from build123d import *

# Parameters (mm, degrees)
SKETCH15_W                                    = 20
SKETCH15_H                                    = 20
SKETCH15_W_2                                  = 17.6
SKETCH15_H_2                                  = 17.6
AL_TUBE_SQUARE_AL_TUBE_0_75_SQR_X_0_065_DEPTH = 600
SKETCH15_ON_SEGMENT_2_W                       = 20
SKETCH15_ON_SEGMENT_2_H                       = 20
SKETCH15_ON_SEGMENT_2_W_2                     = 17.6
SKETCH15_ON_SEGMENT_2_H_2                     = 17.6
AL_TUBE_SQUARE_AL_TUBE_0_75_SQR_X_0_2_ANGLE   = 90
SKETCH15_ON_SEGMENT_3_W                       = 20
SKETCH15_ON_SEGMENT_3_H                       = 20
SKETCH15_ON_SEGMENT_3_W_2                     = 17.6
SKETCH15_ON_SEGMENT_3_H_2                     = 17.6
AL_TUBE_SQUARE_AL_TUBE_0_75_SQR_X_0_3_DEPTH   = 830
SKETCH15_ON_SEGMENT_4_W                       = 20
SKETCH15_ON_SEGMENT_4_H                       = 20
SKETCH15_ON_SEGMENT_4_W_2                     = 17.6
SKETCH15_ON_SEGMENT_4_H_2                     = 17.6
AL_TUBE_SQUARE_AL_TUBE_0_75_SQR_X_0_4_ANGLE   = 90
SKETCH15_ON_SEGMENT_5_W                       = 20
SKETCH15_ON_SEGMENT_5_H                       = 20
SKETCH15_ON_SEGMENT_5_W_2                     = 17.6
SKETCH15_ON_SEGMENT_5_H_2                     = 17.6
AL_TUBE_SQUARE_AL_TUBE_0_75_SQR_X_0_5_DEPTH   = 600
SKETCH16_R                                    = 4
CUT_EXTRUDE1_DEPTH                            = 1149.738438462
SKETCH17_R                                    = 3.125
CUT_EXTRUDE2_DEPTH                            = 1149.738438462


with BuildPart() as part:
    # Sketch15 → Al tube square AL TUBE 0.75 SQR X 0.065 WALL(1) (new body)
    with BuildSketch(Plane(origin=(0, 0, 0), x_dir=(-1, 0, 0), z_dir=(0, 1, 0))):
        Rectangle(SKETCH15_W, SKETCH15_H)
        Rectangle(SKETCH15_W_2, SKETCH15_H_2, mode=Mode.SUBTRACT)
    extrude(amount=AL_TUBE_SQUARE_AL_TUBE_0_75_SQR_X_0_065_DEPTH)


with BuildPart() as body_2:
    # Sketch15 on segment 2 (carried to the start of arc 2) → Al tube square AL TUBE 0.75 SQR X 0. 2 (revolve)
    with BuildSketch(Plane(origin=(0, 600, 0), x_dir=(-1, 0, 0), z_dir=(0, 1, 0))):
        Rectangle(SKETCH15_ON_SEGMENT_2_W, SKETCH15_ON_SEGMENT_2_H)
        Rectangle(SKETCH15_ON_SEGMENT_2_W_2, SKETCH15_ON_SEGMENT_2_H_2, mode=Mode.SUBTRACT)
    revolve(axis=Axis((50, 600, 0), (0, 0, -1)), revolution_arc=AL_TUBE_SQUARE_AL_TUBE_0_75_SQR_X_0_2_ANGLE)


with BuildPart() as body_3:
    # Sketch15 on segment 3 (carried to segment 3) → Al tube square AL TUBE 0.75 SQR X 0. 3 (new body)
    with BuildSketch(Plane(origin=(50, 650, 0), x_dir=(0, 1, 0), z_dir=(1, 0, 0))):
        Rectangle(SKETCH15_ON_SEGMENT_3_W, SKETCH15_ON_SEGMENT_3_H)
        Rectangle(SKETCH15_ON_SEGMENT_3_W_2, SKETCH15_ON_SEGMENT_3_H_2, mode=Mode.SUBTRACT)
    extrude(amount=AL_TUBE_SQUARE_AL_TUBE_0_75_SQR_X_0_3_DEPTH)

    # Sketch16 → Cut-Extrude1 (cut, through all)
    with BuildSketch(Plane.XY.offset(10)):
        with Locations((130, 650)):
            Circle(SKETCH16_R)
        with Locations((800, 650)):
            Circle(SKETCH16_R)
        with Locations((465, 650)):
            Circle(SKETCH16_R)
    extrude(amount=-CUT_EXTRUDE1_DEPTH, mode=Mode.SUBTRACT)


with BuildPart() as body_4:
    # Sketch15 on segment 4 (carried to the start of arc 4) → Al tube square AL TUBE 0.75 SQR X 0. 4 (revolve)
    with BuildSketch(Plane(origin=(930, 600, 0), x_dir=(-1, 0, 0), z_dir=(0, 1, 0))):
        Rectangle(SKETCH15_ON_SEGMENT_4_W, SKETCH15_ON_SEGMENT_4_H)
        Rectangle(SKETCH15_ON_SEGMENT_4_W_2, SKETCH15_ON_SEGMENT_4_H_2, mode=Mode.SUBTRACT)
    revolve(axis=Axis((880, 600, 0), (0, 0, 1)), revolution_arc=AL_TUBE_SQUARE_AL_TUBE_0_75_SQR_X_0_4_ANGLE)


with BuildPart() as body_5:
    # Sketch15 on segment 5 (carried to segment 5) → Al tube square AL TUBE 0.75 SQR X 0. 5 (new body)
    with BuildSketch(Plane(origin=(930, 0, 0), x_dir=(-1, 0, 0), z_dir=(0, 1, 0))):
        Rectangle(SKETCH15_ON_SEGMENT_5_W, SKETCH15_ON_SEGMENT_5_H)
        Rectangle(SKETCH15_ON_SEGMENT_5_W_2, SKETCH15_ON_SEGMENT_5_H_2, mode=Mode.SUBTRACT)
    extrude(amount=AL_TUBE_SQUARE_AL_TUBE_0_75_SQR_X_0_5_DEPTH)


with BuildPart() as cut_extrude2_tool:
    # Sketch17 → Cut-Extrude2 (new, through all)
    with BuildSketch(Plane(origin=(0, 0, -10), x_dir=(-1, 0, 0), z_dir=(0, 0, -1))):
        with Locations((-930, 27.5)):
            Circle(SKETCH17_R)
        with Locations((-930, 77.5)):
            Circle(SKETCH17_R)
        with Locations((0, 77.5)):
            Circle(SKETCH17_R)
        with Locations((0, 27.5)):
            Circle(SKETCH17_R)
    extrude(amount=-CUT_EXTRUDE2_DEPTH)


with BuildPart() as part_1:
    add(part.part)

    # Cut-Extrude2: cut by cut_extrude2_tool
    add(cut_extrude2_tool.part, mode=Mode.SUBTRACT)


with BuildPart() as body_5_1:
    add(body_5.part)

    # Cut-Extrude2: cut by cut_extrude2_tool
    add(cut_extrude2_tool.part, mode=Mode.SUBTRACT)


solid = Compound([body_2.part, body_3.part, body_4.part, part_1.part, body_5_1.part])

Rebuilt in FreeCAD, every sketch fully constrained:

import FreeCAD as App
import Part
import Sketcher

doc = App.newDocument("Part")
params = doc.addObject("Spreadsheet::Sheet", "Params")
for row, (alias, value) in enumerate([
    ("sketch1_width", "20 mm"),
    ("sketch1_width2", "17.6 mm"),
    ("pad1_length", "600 mm"),
    ("sketch2_width", "20 mm"),
    ("sketch2_width2", "17.6 mm"),
    ("revolution_angle", "90 deg"),
    ("sketch3_width", "20 mm"),
    ("sketch3_width2", "17.6 mm"),
    ("pad2_length", "830 mm"),
    ("sketch4_diameter", "8 mm"),
    ("sketch5_width", "20 mm"),
    ("sketch5_width2", "17.6 mm"),
    ("revolution2_angle", "90 deg"),
    ("sketch6_width", "20 mm"),
    ("sketch6_width2", "17.6 mm"),
    ("pad3_length", "600 mm"),
    ("sketch7_diameter", "6.25 mm"),
    ("pad4_length", "1149.738438 mm"),
], start=1):
    params.set(f"A{row}", alias)
    params.set(f"B{row}", "=" + value)
    params.setAlias(f"B{row}", alias)

body = doc.addObject("PartDesign::Body", "Body")

# Sketch on XZ plane
sketch1 = doc.addObject("Sketcher::SketchObject", "Sketch")
body.addObject(sketch1)
sketch1.AttachmentSupport = (doc.XZ_Plane, [""])
sketch1.MapMode = "FlatFace"
sketch1.addGeometry(Part.LineSegment(App.Vector(10, 10, 0), App.Vector(10, -10, 0)), False)
sketch1.addGeometry(Part.LineSegment(App.Vector(10, -10, 0), App.Vector(-10, -10, 0)), False)
sketch1.addGeometry(Part.LineSegment(App.Vector(-10, -10, 0), App.Vector(-10, 10, 0)), False)
sketch1.addGeometry(Part.LineSegment(App.Vector(-10, 10, 0), App.Vector(10, 10, 0)), False)
sketch1.addGeometry(Part.LineSegment(App.Vector(-9, -9, 0), App.Vector(9, -9, 0)), False)
sketch1.addGeometry(Part.LineSegment(App.Vector(9, -9, 0), App.Vector(9, 9, 0)), False)
sketch1.addGeometry(Part.LineSegment(App.Vector(9, 9, 0), App.Vector(-9, 9, 0)), False)
sketch1.addGeometry(Part.LineSegment(App.Vector(-9, 9, 0), App.Vector(-9, -9, 0)), False)
sketch1.addConstraint(Sketcher.Constraint("Coincident", 0, 2, 1, 1))
sketch1.addConstraint(Sketcher.Constraint("Coincident", 1, 2, 2, 1))
sketch1.addConstraint(Sketcher.Constraint("Coincident", 2, 2, 3, 1))
sketch1.addConstraint(Sketcher.Constraint("Coincident", 3, 2, 0, 1))
sketch1.addConstraint(Sketcher.Constraint("Coincident", 4, 2, 5, 1))
sketch1.addConstraint(Sketcher.Constraint("Coincident", 5, 2, 6, 1))
sketch1.addConstraint(Sketcher.Constraint("Coincident", 6, 2, 7, 1))
sketch1.addConstraint(Sketcher.Constraint("Coincident", 7, 2, 4, 1))
sketch1.addConstraint(Sketcher.Constraint("Vertical", 0))
sketch1.addConstraint(Sketcher.Constraint("Horizontal", 1))
sketch1.addConstraint(Sketcher.Constraint("Vertical", 2))
sketch1.addConstraint(Sketcher.Constraint("Horizontal", 3))
sketch1.addConstraint(Sketcher.Constraint("Horizontal", 4))
sketch1.addConstraint(Sketcher.Constraint("Vertical", 5))
sketch1.addConstraint(Sketcher.Constraint("Horizontal", 6))
sketch1.addConstraint(Sketcher.Constraint("Vertical", 7))
sketch1.addConstraint(Sketcher.Constraint("Symmetric", 0, 2, 2, 2, -1, 1))
sketch1.addConstraint(Sketcher.Constraint("Symmetric", 4, 2, 6, 2, -1, 1))
sketch1.addConstraint(Sketcher.Constraint("Equal", 3, 0))
sketch1.addConstraint(Sketcher.Constraint("Equal", 6, 5))
sketch1.addConstraint(Sketcher.Constraint("DistanceX", 1, 2, 1, 1, 20.0))
sketch1.addConstraint(Sketcher.Constraint("DistanceX", 4, 1, 4, 2, 17.6))
sketch1.setExpression("Constraints[20]", "Params.sketch1_width")
sketch1.setExpression("Constraints[21]", "Params.sketch1_width2")
pad1 = doc.addObject("PartDesign::Pad", "Pad")
body.addObject(pad1)
pad1.Profile = sketch1
pad1.setExpression("Length", "Params.pad1_length")
pad1.Reversed = True
body2 = doc.addObject("PartDesign::Body", "Body001")

# Sketch on XZ plane
sketch2 = doc.addObject("Sketcher::SketchObject", "Sketch001")
body2.addObject(sketch2)
sketch2.AttachmentSupport = (doc.getObject("XZ_Plane001"), [""])
sketch2.MapMode = "FlatFace"
sketch2.AttachmentOffset = App.Placement(App.Vector(0, 0, -600), App.Rotation())
sketch2.addGeometry(Part.LineSegment(App.Vector(10, 10, 0), App.Vector(10, -10, 0)), False)
sketch2.addGeometry(Part.LineSegment(App.Vector(10, -10, 0), App.Vector(-10, -10, 0)), False)
sketch2.addGeometry(Part.LineSegment(App.Vector(-10, -10, 0), App.Vector(-10, 10, 0)), False)
sketch2.addGeometry(Part.LineSegment(App.Vector(-10, 10, 0), App.Vector(10, 10, 0)), False)
sketch2.addGeometry(Part.LineSegment(App.Vector(-9, -9, 0), App.Vector(9, -9, 0)), False)
sketch2.addGeometry(Part.LineSegment(App.Vector(9, -9, 0), App.Vector(9, 9, 0)), False)
sketch2.addGeometry(Part.LineSegment(App.Vector(9, 9, 0), App.Vector(-9, 9, 0)), False)
sketch2.addGeometry(Part.LineSegment(App.Vector(-9, 9, 0), App.Vector(-9, -9, 0)), False)
sketch2.addGeometry(Part.LineSegment(App.Vector(50, 10, 0), App.Vector(50, -10, 0)), True)  # axis
sketch2.addConstraint(Sketcher.Constraint("Coincident", 0, 2, 1, 1))
sketch2.addConstraint(Sketcher.Constraint("Coincident", 1, 2, 2, 1))
sketch2.addConstraint(Sketcher.Constraint("Coincident", 2, 2, 3, 1))
sketch2.addConstraint(Sketcher.Constraint("Coincident", 3, 2, 0, 1))
sketch2.addConstraint(Sketcher.Constraint("Coincident", 4, 2, 5, 1))
sketch2.addConstraint(Sketcher.Constraint("Coincident", 5, 2, 6, 1))
sketch2.addConstraint(Sketcher.Constraint("Coincident", 6, 2, 7, 1))
sketch2.addConstraint(Sketcher.Constraint("Coincident", 7, 2, 4, 1))
sketch2.addConstraint(Sketcher.Constraint("Vertical", 0))
sketch2.addConstraint(Sketcher.Constraint("Horizontal", 1))
sketch2.addConstraint(Sketcher.Constraint("Vertical", 2))
sketch2.addConstraint(Sketcher.Constraint("Horizontal", 3))
sketch2.addConstraint(Sketcher.Constraint("Horizontal", 4))
sketch2.addConstraint(Sketcher.Constraint("Vertical", 5))
sketch2.addConstraint(Sketcher.Constraint("Horizontal", 6))
sketch2.addConstraint(Sketcher.Constraint("Vertical", 7))
sketch2.addConstraint(Sketcher.Constraint("Vertical", 8))
sketch2.addConstraint(Sketcher.Constraint("Symmetric", 0, 2, 2, 2, -1, 1))
sketch2.addConstraint(Sketcher.Constraint("Symmetric", 4, 2, 6, 2, -1, 1))
sketch2.addConstraint(Sketcher.Constraint("Horizontal", 3, 2, 8, 1))
sketch2.addConstraint(Sketcher.Constraint("Horizontal", 1, 2, 8, 2))
sketch2.addConstraint(Sketcher.Constraint("Equal", 3, 0))
sketch2.addConstraint(Sketcher.Constraint("Equal", 6, 5))
sketch2.addConstraint(Sketcher.Constraint("DistanceX", 1, 2, 1, 1, 20.0))
sketch2.addConstraint(Sketcher.Constraint("DistanceX", 4, 1, 4, 2, 17.6))
sketch2.addConstraint(Sketcher.Constraint("DistanceX", -1, 1, 8, 1, 50.0))
sketch2.setExpression("Constraints[23]", "Params.sketch2_width")
sketch2.setExpression("Constraints[24]", "Params.sketch2_width2")
revolution = doc.addObject("PartDesign::Revolution", "Revolution")
body2.addObject(revolution)
revolution.Profile = sketch2
revolution.ReferenceAxis = (sketch2, ["Axis0"])
revolution.setExpression("Angle", "Params.revolution_angle")
body3 = doc.addObject("PartDesign::Body", "Body002")

# Sketch on YZ plane
sketch3 = doc.addObject("Sketcher::SketchObject", "Sketch002")
body3.addObject(sketch3)
sketch3.AttachmentSupport = (doc.getObject("YZ_Plane002"), [""])
sketch3.MapMode = "FlatFace"
sketch3.AttachmentOffset = App.Placement(App.Vector(0, 0, 50), App.Rotation())
sketch3.addGeometry(Part.LineSegment(App.Vector(640, 10, 0), App.Vector(640, -10, 0)), False)
sketch3.addGeometry(Part.LineSegment(App.Vector(640, -10, 0), App.Vector(660, -10, 0)), False)
sketch3.addGeometry(Part.LineSegment(App.Vector(660, -10, 0), App.Vector(660, 10, 0)), False)
sketch3.addGeometry(Part.LineSegment(App.Vector(660, 10, 0), App.Vector(640, 10, 0)), False)
sketch3.addGeometry(Part.LineSegment(App.Vector(659, -9, 0), App.Vector(641, -9, 0)), False)
sketch3.addGeometry(Part.LineSegment(App.Vector(641, -9, 0), App.Vector(641, 9, 0)), False)
sketch3.addGeometry(Part.LineSegment(App.Vector(641, 9, 0), App.Vector(659, 9, 0)), False)
sketch3.addGeometry(Part.LineSegment(App.Vector(659, 9, 0), App.Vector(659, -9, 0)), False)
sketch3.addConstraint(Sketcher.Constraint("Coincident", 0, 2, 1, 1))
sketch3.addConstraint(Sketcher.Constraint("Coincident", 1, 2, 2, 1))
sketch3.addConstraint(Sketcher.Constraint("Coincident", 2, 2, 3, 1))
sketch3.addConstraint(Sketcher.Constraint("Coincident", 3, 2, 0, 1))
sketch3.addConstraint(Sketcher.Constraint("Coincident", 4, 2, 5, 1))
sketch3.addConstraint(Sketcher.Constraint("Coincident", 5, 2, 6, 1))
sketch3.addConstraint(Sketcher.Constraint("Coincident", 6, 2, 7, 1))
sketch3.addConstraint(Sketcher.Constraint("Coincident", 7, 2, 4, 1))
sketch3.addConstraint(Sketcher.Constraint("Vertical", 0))
sketch3.addConstraint(Sketcher.Constraint("Horizontal", 1))
sketch3.addConstraint(Sketcher.Constraint("Vertical", 2))
sketch3.addConstraint(Sketcher.Constraint("Horizontal", 3))
sketch3.addConstraint(Sketcher.Constraint("Horizontal", 4))
sketch3.addConstraint(Sketcher.Constraint("Vertical", 5))
sketch3.addConstraint(Sketcher.Constraint("Horizontal", 6))
sketch3.addConstraint(Sketcher.Constraint("Vertical", 7))
sketch3.addConstraint(Sketcher.Constraint("Equal", 3, 0))
sketch3.addConstraint(Sketcher.Constraint("Equal", 6, 5))
sketch3.addConstraint(Sketcher.Constraint("DistanceX", 1, 1, 1, 2, 20.0))
sketch3.addConstraint(Sketcher.Constraint("DistanceX", 4, 2, 4, 1, 17.6))
sketch3.addConstraint(Sketcher.Constraint("DistanceX", -1, 1, 0, 2, 640.0))
sketch3.addConstraint(Sketcher.Constraint("DistanceY", 0, 2, -1, 1, 10.0))
sketch3.addConstraint(Sketcher.Constraint("DistanceX", -1, 1, 4, 2, 641.2))
sketch3.addConstraint(Sketcher.Constraint("DistanceY", 4, 2, -1, 1, 8.8))
sketch3.setExpression("Constraints[18]", "Params.sketch3_width")
sketch3.setExpression("Constraints[19]", "Params.sketch3_width2")
pad2 = doc.addObject("PartDesign::Pad", "Pad001")
body3.addObject(pad2)
pad2.Profile = sketch3
pad2.setExpression("Length", "Params.pad2_length")

# Sketch on XY plane
sketch4 = doc.addObject("Sketcher::SketchObject", "Sketch003")
body3.addObject(sketch4)
sketch4.AttachmentSupport = (doc.getObject("XY_Plane002"), [""])
sketch4.MapMode = "FlatFace"
sketch4.AttachmentOffset = App.Placement(App.Vector(0, 0, 10), App.Rotation())
sketch4.addGeometry(Part.Circle(App.Vector(130, 650, 0), App.Vector(0, 0, 1), 4), False)
sketch4.addGeometry(Part.Circle(App.Vector(800, 650, 0), App.Vector(0, 0, 1), 4), False)
sketch4.addGeometry(Part.Circle(App.Vector(465, 650, 0), App.Vector(0, 0, 1), 4), False)
sketch4.addConstraint(Sketcher.Constraint("Equal", 0, 1))
sketch4.addConstraint(Sketcher.Constraint("Equal", 1, 2))
sketch4.addConstraint(Sketcher.Constraint("Horizontal", 0, 3, 1, 3))
sketch4.addConstraint(Sketcher.Constraint("Horizontal", 1, 3, 2, 3))
sketch4.addConstraint(Sketcher.Constraint("Diameter", 0, 8.0))
sketch4.addConstraint(Sketcher.Constraint("DistanceX", -1, 1, 0, 3, 130.0))
sketch4.addConstraint(Sketcher.Constraint("DistanceY", -1, 1, 0, 3, 650.0))
sketch4.addConstraint(Sketcher.Constraint("DistanceX", -1, 1, 1, 3, 800.0))
sketch4.addConstraint(Sketcher.Constraint("DistanceX", -1, 1, 2, 3, 465.0))
sketch4.setExpression("Constraints[4]", "Params.sketch4_diameter")
pocket1 = doc.addObject("PartDesign::Pocket", "Pocket")
body3.addObject(pocket1)
pocket1.Profile = sketch4
pocket1.Type = "ThroughAll"
body4 = doc.addObject("PartDesign::Body", "Body003")

# Sketch on XZ plane
sketch5 = doc.addObject("Sketcher::SketchObject", "Sketch004")
body4.addObject(sketch5)
sketch5.AttachmentSupport = (doc.getObject("XZ_Plane003"), [""])
sketch5.MapMode = "FlatFace"
sketch5.AttachmentOffset = App.Placement(App.Vector(0, 0, -600), App.Rotation())
sketch5.addGeometry(Part.LineSegment(App.Vector(940, 10, 0), App.Vector(940, -10, 0)), False)
sketch5.addGeometry(Part.LineSegment(App.Vector(940, -10, 0), App.Vector(920, -10, 0)), False)
sketch5.addGeometry(Part.LineSegment(App.Vector(920, -10, 0), App.Vector(920, 10, 0)), False)
sketch5.addGeometry(Part.LineSegment(App.Vector(920, 10, 0), App.Vector(940, 10, 0)), False)
sketch5.addGeometry(Part.LineSegment(App.Vector(921, -9, 0), App.Vector(939, -9, 0)), False)
sketch5.addGeometry(Part.LineSegment(App.Vector(939, -9, 0), App.Vector(939, 9, 0)), False)
sketch5.addGeometry(Part.LineSegment(App.Vector(939, 9, 0), App.Vector(921, 9, 0)), False)
sketch5.addGeometry(Part.LineSegment(App.Vector(921, 9, 0), App.Vector(921, -9, 0)), False)
sketch5.addGeometry(Part.LineSegment(App.Vector(880, -10, 0), App.Vector(880, 10, 0)), True)  # axis
sketch5.addConstraint(Sketcher.Constraint("Coincident", 0, 2, 1, 1))
sketch5.addConstraint(Sketcher.Constraint("Coincident", 1, 2, 2, 1))
sketch5.addConstraint(Sketcher.Constraint("Coincident", 2, 2, 3, 1))
sketch5.addConstraint(Sketcher.Constraint("Coincident", 3, 2, 0, 1))
sketch5.addConstraint(Sketcher.Constraint("Coincident", 4, 2, 5, 1))
sketch5.addConstraint(Sketcher.Constraint("Coincident", 5, 2, 6, 1))
sketch5.addConstraint(Sketcher.Constraint("Coincident", 6, 2, 7, 1))
sketch5.addConstraint(Sketcher.Constraint("Coincident", 7, 2, 4, 1))
sketch5.addConstraint(Sketcher.Constraint("Vertical", 0))
sketch5.addConstraint(Sketcher.Constraint("Horizontal", 1))
sketch5.addConstraint(Sketcher.Constraint("Vertical", 2))
sketch5.addConstraint(Sketcher.Constraint("Horizontal", 3))
sketch5.addConstraint(Sketcher.Constraint("Horizontal", 4))
sketch5.addConstraint(Sketcher.Constraint("Vertical", 5))
sketch5.addConstraint(Sketcher.Constraint("Horizontal", 6))
sketch5.addConstraint(Sketcher.Constraint("Vertical", 7))
sketch5.addConstraint(Sketcher.Constraint("Vertical", 8))
sketch5.addConstraint(Sketcher.Constraint("Horizontal", 1, 2, 8, 1))
sketch5.addConstraint(Sketcher.Constraint("Horizontal", 3, 2, 8, 2))
sketch5.addConstraint(Sketcher.Constraint("Equal", 3, 0))
sketch5.addConstraint(Sketcher.Constraint("Equal", 6, 5))
sketch5.addConstraint(Sketcher.Constraint("DistanceX", 1, 2, 1, 1, 20.0))
sketch5.addConstraint(Sketcher.Constraint("DistanceX", 4, 1, 4, 2, 17.6))
sketch5.addConstraint(Sketcher.Constraint("DistanceX", -1, 1, 0, 2, 940.0))
sketch5.addConstraint(Sketcher.Constraint("DistanceY", 0, 2, -1, 1, 10.0))
sketch5.addConstraint(Sketcher.Constraint("DistanceX", -1, 1, 8, 1, 880.0))
sketch5.addConstraint(Sketcher.Constraint("DistanceX", -1, 1, 4, 2, 938.8))
sketch5.addConstraint(Sketcher.Constraint("DistanceY", 4, 2, -1, 1, 8.8))
sketch5.setExpression("Constraints[21]", "Params.sketch5_width")
sketch5.setExpression("Constraints[22]", "Params.sketch5_width2")
revolution2 = doc.addObject("PartDesign::Revolution", "Revolution001")
body4.addObject(revolution2)
revolution2.Profile = sketch5
revolution2.ReferenceAxis = (sketch5, ["Axis0"])
revolution2.setExpression("Angle", "Params.revolution2_angle")
body5 = doc.addObject("PartDesign::Body", "Body004")

# Sketch on XZ plane
sketch6 = doc.addObject("Sketcher::SketchObject", "Sketch005")
body5.addObject(sketch6)
sketch6.AttachmentSupport = (doc.getObject("XZ_Plane004"), [""])
sketch6.MapMode = "FlatFace"
sketch6.addGeometry(Part.LineSegment(App.Vector(940, 10, 0), App.Vector(940, -10, 0)), False)
sketch6.addGeometry(Part.LineSegment(App.Vector(940, -10, 0), App.Vector(920, -10, 0)), False)
sketch6.addGeometry(Part.LineSegment(App.Vector(920, -10, 0), App.Vector(920, 10, 0)), False)
sketch6.addGeometry(Part.LineSegment(App.Vector(920, 10, 0), App.Vector(940, 10, 0)), False)
sketch6.addGeometry(Part.LineSegment(App.Vector(921, -9, 0), App.Vector(939, -9, 0)), False)
sketch6.addGeometry(Part.LineSegment(App.Vector(939, -9, 0), App.Vector(939, 9, 0)), False)
sketch6.addGeometry(Part.LineSegment(App.Vector(939, 9, 0), App.Vector(921, 9, 0)), False)
sketch6.addGeometry(Part.LineSegment(App.Vector(921, 9, 0), App.Vector(921, -9, 0)), False)
sketch6.addConstraint(Sketcher.Constraint("Coincident", 0, 2, 1, 1))
sketch6.addConstraint(Sketcher.Constraint("Coincident", 1, 2, 2, 1))
sketch6.addConstraint(Sketcher.Constraint("Coincident", 2, 2, 3, 1))
sketch6.addConstraint(Sketcher.Constraint("Coincident", 3, 2, 0, 1))
sketch6.addConstraint(Sketcher.Constraint("Coincident", 4, 2, 5, 1))
sketch6.addConstraint(Sketcher.Constraint("Coincident", 5, 2, 6, 1))
sketch6.addConstraint(Sketcher.Constraint("Coincident", 6, 2, 7, 1))
sketch6.addConstraint(Sketcher.Constraint("Coincident", 7, 2, 4, 1))
sketch6.addConstraint(Sketcher.Constraint("Vertical", 0))
sketch6.addConstraint(Sketcher.Constraint("Horizontal", 1))
sketch6.addConstraint(Sketcher.Constraint("Vertical", 2))
sketch6.addConstraint(Sketcher.Constraint("Horizontal", 3))
sketch6.addConstraint(Sketcher.Constraint("Horizontal", 4))
sketch6.addConstraint(Sketcher.Constraint("Vertical", 5))
sketch6.addConstraint(Sketcher.Constraint("Horizontal", 6))
sketch6.addConstraint(Sketcher.Constraint("Vertical", 7))
sketch6.addConstraint(Sketcher.Constraint("Equal", 3, 0))
sketch6.addConstraint(Sketcher.Constraint("Equal", 6, 5))
sketch6.addConstraint(Sketcher.Constraint("DistanceX", 1, 2, 1, 1, 20.0))
sketch6.addConstraint(Sketcher.Constraint("DistanceX", 4, 1, 4, 2, 17.6))
sketch6.addConstraint(Sketcher.Constraint("DistanceX", -1, 1, 0, 2, 940.0))
sketch6.addConstraint(Sketcher.Constraint("DistanceY", 0, 2, -1, 1, 10.0))
sketch6.addConstraint(Sketcher.Constraint("DistanceX", -1, 1, 4, 2, 938.8))
sketch6.addConstraint(Sketcher.Constraint("DistanceY", 4, 2, -1, 1, 8.8))
sketch6.setExpression("Constraints[18]", "Params.sketch6_width")
sketch6.setExpression("Constraints[19]", "Params.sketch6_width2")
pad3 = doc.addObject("PartDesign::Pad", "Pad002")
body5.addObject(pad3)
pad3.Profile = sketch6
pad3.setExpression("Length", "Params.pad3_length")
pad3.Reversed = True
body6 = doc.addObject("PartDesign::Body", "Body005")
body6.AllowCompound = True

# Sketch on XY plane
sketch7 = doc.addObject("Sketcher::SketchObject", "Sketch006")
body6.addObject(sketch7)
sketch7.AttachmentSupport = (doc.getObject("XY_Plane005"), [""])
sketch7.MapMode = "FlatFace"
sketch7.AttachmentOffset = App.Placement(App.Vector(0, 0, -10), App.Rotation())
sketch7.addGeometry(Part.Circle(App.Vector(930, 27.5, 0), App.Vector(0, 0, 1), 3.1), False)
sketch7.addGeometry(Part.Circle(App.Vector(930, 77.5, 0), App.Vector(0, 0, 1), 3.1), False)
sketch7.addGeometry(Part.Circle(App.Vector(0, 77.5, 0), App.Vector(0, 0, 1), 3.1), False)
sketch7.addGeometry(Part.Circle(App.Vector(0, 27.5, 0), App.Vector(0, 0, 1), 3.1), False)
sketch7.addConstraint(Sketcher.Constraint("Equal", 0, 1))
sketch7.addConstraint(Sketcher.Constraint("Equal", 1, 2))
sketch7.addConstraint(Sketcher.Constraint("Equal", 2, 3))
sketch7.addConstraint(Sketcher.Constraint("PointOnObject", 2, 3, -2))
sketch7.addConstraint(Sketcher.Constraint("PointOnObject", 3, 3, -2))
sketch7.addConstraint(Sketcher.Constraint("Horizontal", 1, 3, 2, 3))
sketch7.addConstraint(Sketcher.Constraint("Horizontal", 0, 3, 3, 3))
sketch7.addConstraint(Sketcher.Constraint("Vertical", 0, 3, 1, 3))
sketch7.addConstraint(Sketcher.Constraint("Diameter", 0, 6.25))
sketch7.addConstraint(Sketcher.Constraint("DistanceX", -1, 1, 0, 3, 930.0))
sketch7.addConstraint(Sketcher.Constraint("DistanceY", 0, 3, 1, 3, 50.0))
sketch7.addConstraint(Sketcher.Constraint("DistanceY", -1, 1, 0, 3, 27.5))
sketch7.setExpression("Constraints[8]", "Params.sketch7_diameter")
pad4 = doc.addObject("PartDesign::Pad", "Pad003")
body6.addObject(pad4)
pad4.Profile = sketch7
pad4.setExpression("Length", "Params.pad4_length")
doc.recompute()

body7 = doc.addObject("PartDesign::Body", "Body006")
body7.BaseFeature = body6
boolean = doc.addObject("PartDesign::Boolean", "Boolean")
body.addObject(boolean)
boolean.Type = "Cut"
boolean.addObjects([body7])
doc.recompute()

boolean2 = doc.addObject("PartDesign::Boolean", "Boolean001")
body5.addObject(boolean2)
boolean2.Type = "Cut"
boolean2.addObjects([body6])

doc.recompute()
